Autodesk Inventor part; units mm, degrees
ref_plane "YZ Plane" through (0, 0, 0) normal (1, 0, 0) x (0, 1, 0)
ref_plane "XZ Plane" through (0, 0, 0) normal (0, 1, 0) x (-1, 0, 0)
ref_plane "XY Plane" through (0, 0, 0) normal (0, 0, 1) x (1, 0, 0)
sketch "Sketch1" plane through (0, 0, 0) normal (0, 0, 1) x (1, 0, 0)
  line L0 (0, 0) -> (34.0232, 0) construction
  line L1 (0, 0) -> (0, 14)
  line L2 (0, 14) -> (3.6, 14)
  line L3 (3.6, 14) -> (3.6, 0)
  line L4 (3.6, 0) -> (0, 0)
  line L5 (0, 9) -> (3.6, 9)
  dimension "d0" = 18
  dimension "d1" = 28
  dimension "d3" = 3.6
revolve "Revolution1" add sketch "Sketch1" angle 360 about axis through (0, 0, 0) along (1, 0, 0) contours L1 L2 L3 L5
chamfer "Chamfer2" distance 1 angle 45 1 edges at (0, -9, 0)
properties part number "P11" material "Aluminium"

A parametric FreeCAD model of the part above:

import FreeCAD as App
import Part
import Sketcher

V = App.Vector
Q = App.Units.Quantity


def edges_at(feature, points):
    """Names of the edges that pass closest to the given points."""
    edges = feature.Shape.Edges
    near = lambda p: min(range(len(edges)), key=lambda i: edges[i].distToShape(Part.Vertex(*p))[0])
    return sorted({f"Edge{near(p) + 1}" for p in points})


def add_polygon(sketch, points):
    """Adds a closed chain of lines whose ends are joined by coincident constraints."""
    first, n = sketch.GeometryCount, len(points)
    for a, b in zip(points, points[1:] + points[:1]):
        sketch.addGeometry(Part.LineSegment(App.Vector(*a, 0), App.Vector(*b, 0)), False)
    for i in range(n):
        sketch.addConstraint(Sketcher.Constraint("Coincident", first + i, 2, first + (i + 1) % n, 1))

doc = App.newDocument("Part")
body = doc.addObject("PartDesign::Body", "Body")

# Sketch on XY plane
sketch1 = doc.addObject("Sketcher::SketchObject", "Sketch")
body.addObject(sketch1)
sketch1.AttachmentSupport = (doc.XY_Plane, [""])
sketch1.MapMode = "FlatFace"
add_polygon(sketch1, [(0, 14), (0, 9), (3.6, 9), (3.6, 14)])  # lines 0-3
sketch1.addConstraint([
    Sketcher.Constraint("Vertical", 0),
    Sketcher.Constraint("Horizontal", 1),
    Sketcher.Constraint("Vertical", 2),
    Sketcher.Constraint("Horizontal", 3),
    Sketcher.Constraint("PointOnObject", 0, 2, -2),
    Sketcher.Constraint("DistanceX", 1, 1, 1, 2, Q("3.6 mm")),
    Sketcher.Constraint("DistanceY", 0, 2, 0, 1, Q("5 mm")),
    Sketcher.Constraint("DistanceY", -1, 1, 0, 2, Q("9 mm")),
])
revolution = doc.addObject("PartDesign::Revolution", "Revolution")
body.addObject(revolution)
revolution.Profile = sketch1
revolution.ReferenceAxis = (sketch1, ["H_Axis"])
revolution.Angle = 360
doc.recompute()

chamfer = doc.addObject("PartDesign::Chamfer", "Chamfer")
body.addObject(chamfer)
chamfer.Base = (revolution, edges_at(revolution, [(0, -9, 0)]))
chamfer.Size = 1

doc.recompute()
